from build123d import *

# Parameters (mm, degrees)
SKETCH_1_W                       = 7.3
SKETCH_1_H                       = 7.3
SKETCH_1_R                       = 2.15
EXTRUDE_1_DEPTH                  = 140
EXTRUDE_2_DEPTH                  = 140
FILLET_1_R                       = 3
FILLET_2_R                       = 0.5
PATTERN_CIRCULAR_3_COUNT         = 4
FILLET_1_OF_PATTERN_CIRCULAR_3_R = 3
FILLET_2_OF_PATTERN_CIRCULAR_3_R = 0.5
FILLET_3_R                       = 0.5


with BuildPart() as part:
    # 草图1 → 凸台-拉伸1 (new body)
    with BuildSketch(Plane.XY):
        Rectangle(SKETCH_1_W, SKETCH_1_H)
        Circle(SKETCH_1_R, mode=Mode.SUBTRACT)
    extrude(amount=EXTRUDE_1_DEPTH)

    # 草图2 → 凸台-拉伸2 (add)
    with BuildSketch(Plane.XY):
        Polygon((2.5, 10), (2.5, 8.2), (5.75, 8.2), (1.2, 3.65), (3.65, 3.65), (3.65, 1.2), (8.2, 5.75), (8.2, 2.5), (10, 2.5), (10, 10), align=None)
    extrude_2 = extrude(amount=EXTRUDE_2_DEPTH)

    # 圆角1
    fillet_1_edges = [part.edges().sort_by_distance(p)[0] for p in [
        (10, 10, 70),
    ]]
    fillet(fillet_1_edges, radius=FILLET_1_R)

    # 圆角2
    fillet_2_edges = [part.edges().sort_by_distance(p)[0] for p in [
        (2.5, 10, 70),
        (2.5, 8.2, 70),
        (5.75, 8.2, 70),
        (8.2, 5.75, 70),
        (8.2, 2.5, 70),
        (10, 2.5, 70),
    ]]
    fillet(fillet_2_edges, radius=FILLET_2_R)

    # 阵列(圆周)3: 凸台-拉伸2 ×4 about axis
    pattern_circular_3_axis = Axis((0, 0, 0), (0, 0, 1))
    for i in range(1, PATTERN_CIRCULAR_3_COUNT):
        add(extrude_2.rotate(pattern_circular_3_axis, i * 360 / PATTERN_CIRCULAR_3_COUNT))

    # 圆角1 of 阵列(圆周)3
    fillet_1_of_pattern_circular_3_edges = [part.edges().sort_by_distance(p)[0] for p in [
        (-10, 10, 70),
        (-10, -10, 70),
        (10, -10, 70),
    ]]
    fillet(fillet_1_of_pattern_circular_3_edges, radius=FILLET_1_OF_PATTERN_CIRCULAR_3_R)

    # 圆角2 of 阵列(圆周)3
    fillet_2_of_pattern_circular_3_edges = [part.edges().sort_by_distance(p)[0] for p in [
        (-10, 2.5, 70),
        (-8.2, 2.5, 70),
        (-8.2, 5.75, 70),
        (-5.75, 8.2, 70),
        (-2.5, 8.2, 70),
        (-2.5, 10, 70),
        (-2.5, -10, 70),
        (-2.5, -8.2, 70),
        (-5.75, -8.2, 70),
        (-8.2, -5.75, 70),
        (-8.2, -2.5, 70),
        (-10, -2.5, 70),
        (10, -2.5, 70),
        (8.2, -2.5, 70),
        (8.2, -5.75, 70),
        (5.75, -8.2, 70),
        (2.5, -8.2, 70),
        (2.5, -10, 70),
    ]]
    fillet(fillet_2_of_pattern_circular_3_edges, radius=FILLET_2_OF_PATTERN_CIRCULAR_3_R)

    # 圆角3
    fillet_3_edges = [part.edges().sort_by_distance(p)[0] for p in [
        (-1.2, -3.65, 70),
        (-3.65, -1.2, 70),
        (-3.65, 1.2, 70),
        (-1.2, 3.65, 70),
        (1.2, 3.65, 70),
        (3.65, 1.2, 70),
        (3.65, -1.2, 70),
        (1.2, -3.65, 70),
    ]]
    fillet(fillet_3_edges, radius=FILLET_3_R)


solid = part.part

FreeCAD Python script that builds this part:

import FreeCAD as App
import Part
import Sketcher

V = App.Vector
Q = App.Units.Quantity


def edges_at(feature, points):
    """Names of the edges that pass closest to the given points."""
    edges = feature.Shape.Edges
    near = lambda p: min(range(len(edges)), key=lambda i: edges[i].distToShape(Part.Vertex(*p))[0])
    return sorted({f"Edge{near(p) + 1}" for p in points})

doc = App.newDocument("Part")
body = doc.addObject("PartDesign::Body", "Body")

sketch1 = doc.addObject("Sketcher::SketchObject", "Sketch")
body.addObject(sketch1)
sketch1.AttachmentSupport = (doc.XY_Plane, [""])
sketch1.MapMode = "FlatFace"
sketch1.addGeometry([
    Part.LineSegment(V(-3.6, 3.6, 0), V(-3.6, -3.6, 0)),
    Part.LineSegment(V(-3.6, -3.6, 0), V(3.6, -3.6, 0)),
    Part.LineSegment(V(3.6, -3.6, 0), V(3.6, 3.6, 0)),
    Part.LineSegment(V(3.6, 3.6, 0), V(-3.6, 3.6, 0)),
    Part.Circle(V(0, 0, 0), V(0, 0, 1), 2.1),
], False)
sketch1.addConstraint([
    Sketcher.Constraint("Coincident", 0, 2, 1, 1),
    Sketcher.Constraint("Coincident", 1, 2, 2, 1),
    Sketcher.Constraint("Coincident", 2, 2, 3, 1),
    Sketcher.Constraint("Coincident", 3, 2, 0, 1),
    Sketcher.Constraint("Vertical", 0),
    Sketcher.Constraint("Horizontal", 1),
    Sketcher.Constraint("Vertical", 2),
    Sketcher.Constraint("Horizontal", 3),
    Sketcher.Constraint("Coincident", 4, 3, -1, 1),
    Sketcher.Constraint("Symmetric", 0, 2, 2, 2, -1, 1),
    Sketcher.Constraint("Equal", 3, 0),
    Sketcher.Constraint("Diameter", 4, 4.3),
    Sketcher.Constraint("DistanceX", 1, 1, 1, 2, 7.3),
])
pad1 = doc.addObject("PartDesign::Pad", "Pad")
body.addObject(pad1)
pad1.Profile = sketch1
pad1.Length = 140

sketch2 = doc.addObject("Sketcher::SketchObject", "Sketch001")
body.addObject(sketch2)
sketch2.AttachmentSupport = (doc.XY_Plane, [""])
sketch2.MapMode = "FlatFace"
sketch2.addGeometry([
    Part.LineSegment(V(2.5, 10, 0), V(2.5, 8.2, 0)),
    Part.LineSegment(V(2.5, 8.2, 0), V(5.8, 8.2, 0)),
    Part.LineSegment(V(5.8, 8.2, 0), V(1.2, 3.6, 0)),
    Part.LineSegment(V(1.2, 3.6, 0), V(3.6, 3.6, 0)),
    Part.LineSegment(V(3.6, 3.6, 0), V(3.6, 1.2, 0)),
    Part.LineSegment(V(3.6, 1.2, 0), V(8.2, 5.8, 0)),
    Part.LineSegment(V(8.2, 5.8, 0), V(8.2, 2.5, 0)),
    Part.LineSegment(V(8.2, 2.5, 0), V(10, 2.5, 0)),
    Part.LineSegment(V(10, 2.5, 0), V(10, 10, 0)),
    Part.LineSegment(V(10, 10, 0), V(2.5, 10, 0)),
], False)
sketch2.addConstraint([
    Sketcher.Constraint("Coincident", 0, 2, 1, 1),
    Sketcher.Constraint("Coincident", 1, 2, 2, 1),
    Sketcher.Constraint("Coincident", 2, 2, 3, 1),
    Sketcher.Constraint("Coincident", 3, 2, 4, 1),
    Sketcher.Constraint("Coincident", 4, 2, 5, 1),
    Sketcher.Constraint("Coincident", 5, 2, 6, 1),
    Sketcher.Constraint("Coincident", 6, 2, 7, 1),
    Sketcher.Constraint("Coincident", 7, 2, 8, 1),
    Sketcher.Constraint("Coincident", 8, 2, 9, 1),
    Sketcher.Constraint("Coincident", 9, 2, 0, 1),
    Sketcher.Constraint("Vertical", 0),
    Sketcher.Constraint("Horizontal", 1),
    Sketcher.Constraint("Horizontal", 3),
    Sketcher.Constraint("Vertical", 4),
    Sketcher.Constraint("Vertical", 6),
    Sketcher.Constraint("Horizontal", 7),
    Sketcher.Constraint("Vertical", 8),
    Sketcher.Constraint("Horizontal", 9),
    Sketcher.Constraint("Parallel", 2, 5),
    Sketcher.Constraint("Equal", 7, 0),
    Sketcher.Constraint("Equal", 3, 4),
    Sketcher.Constraint("Equal", 1, 6),
    Sketcher.Constraint("Equal", 9, 8),
    Sketcher.Constraint("Angle", 2, Q("-135 deg")),
    Sketcher.Constraint("DistanceX", 7, 1, 7, 2, 1.8),
    Sketcher.Constraint("DistanceX", 9, 2, 9, 1, 7.5),
    Sketcher.Constraint("DistanceX", -1, 1, 7, 2, 10.0),
    Sketcher.Constraint("DistanceY", -1, 1, 8, 2, 10.0),
    Sketcher.Constraint("DistanceY", 4, 2, 0, 2, 7.0),
    Sketcher.Constraint("DistanceX", 1, 1, 1, 2, 3.25),
])
pad2 = doc.addObject("PartDesign::Pad", "Pad001")
body.addObject(pad2)
pad2.Profile = sketch2
pad2.Length = 140
doc.recompute()

fillet = doc.addObject("PartDesign::Fillet", "Fillet")
body.addObject(fillet)
fillet.Base = (pad2, edges_at(pad2, [(10, 10, 70)]))
fillet.Radius = 3
doc.recompute()

fillet2 = doc.addObject("PartDesign::Fillet", "Fillet001")
body.addObject(fillet2)
fillet2.Base = (fillet, edges_at(fillet, [
    (2.5, 10, 70),
    (2.5, 8.2, 70),
    (5.75, 8.2, 70),
    (8.2, 5.75, 70),
    (8.2, 2.5, 70),
    (10, 2.5, 70),
]))
fillet2.Radius = 0.5
doc.recompute()

polarpattern = doc.addObject("PartDesign::PolarPattern", "PolarPattern")
body.addObject(polarpattern)
polarpattern.Originals = [pad2]
polarpattern.Axis = (doc.Z_Axis, [""])
polarpattern.Angle = 360
polarpattern.Occurrences = 4
body.Tip = polarpattern
doc.recompute()

fillet3 = doc.addObject("PartDesign::Fillet", "Fillet002")
body.addObject(fillet3)
fillet3.Base = (polarpattern, edges_at(polarpattern, [(-10, 10, 70), (-10, -10, 70), (10, -10, 70)]))
fillet3.Radius = 3
doc.recompute()

fillet4 = doc.addObject("PartDesign::Fillet", "Fillet003")
body.addObject(fillet4)
fillet4.Base = (fillet3, edges_at(fillet3, [
    (-10, 2.5, 70),
    (-8.2, 2.5, 70),
    (-8.2, 5.75, 70),
    (-5.75, 8.2, 70),
    (-2.5, 8.2, 70),
    (-2.5, 10, 70),
    (-2.5, -10, 70),
    (-2.5, -8.2, 70),
    (-5.75, -8.2, 70),
    (-8.2, -5.75, 70),
    (-8.2, -2.5, 70),
    (-10, -2.5, 70),
    (10, -2.5, 70),
    (8.2, -2.5, 70),
    (8.2, -5.75, 70),
    (5.75, -8.2, 70),
    (2.5, -8.2, 70),
    (2.5, -10, 70),
]))
fillet4.Radius = 0.5
doc.recompute()

fillet5 = doc.addObject("PartDesign::Fillet", "Fillet004")
body.addObject(fillet5)
fillet5.Base = (fillet4, edges_at(fillet4, [
    (-1.2, -3.65, 70),
    (-3.65, -1.2, 70),
    (-3.65, 1.2, 70),
    (-1.2, 3.65, 70),
    (1.2, 3.65, 70),
    (3.65, 1.2, 70),
    (3.65, -1.2, 70),
    (1.2, -3.65, 70),
]))
fillet5.Radius = 0.5

doc.recompute()
